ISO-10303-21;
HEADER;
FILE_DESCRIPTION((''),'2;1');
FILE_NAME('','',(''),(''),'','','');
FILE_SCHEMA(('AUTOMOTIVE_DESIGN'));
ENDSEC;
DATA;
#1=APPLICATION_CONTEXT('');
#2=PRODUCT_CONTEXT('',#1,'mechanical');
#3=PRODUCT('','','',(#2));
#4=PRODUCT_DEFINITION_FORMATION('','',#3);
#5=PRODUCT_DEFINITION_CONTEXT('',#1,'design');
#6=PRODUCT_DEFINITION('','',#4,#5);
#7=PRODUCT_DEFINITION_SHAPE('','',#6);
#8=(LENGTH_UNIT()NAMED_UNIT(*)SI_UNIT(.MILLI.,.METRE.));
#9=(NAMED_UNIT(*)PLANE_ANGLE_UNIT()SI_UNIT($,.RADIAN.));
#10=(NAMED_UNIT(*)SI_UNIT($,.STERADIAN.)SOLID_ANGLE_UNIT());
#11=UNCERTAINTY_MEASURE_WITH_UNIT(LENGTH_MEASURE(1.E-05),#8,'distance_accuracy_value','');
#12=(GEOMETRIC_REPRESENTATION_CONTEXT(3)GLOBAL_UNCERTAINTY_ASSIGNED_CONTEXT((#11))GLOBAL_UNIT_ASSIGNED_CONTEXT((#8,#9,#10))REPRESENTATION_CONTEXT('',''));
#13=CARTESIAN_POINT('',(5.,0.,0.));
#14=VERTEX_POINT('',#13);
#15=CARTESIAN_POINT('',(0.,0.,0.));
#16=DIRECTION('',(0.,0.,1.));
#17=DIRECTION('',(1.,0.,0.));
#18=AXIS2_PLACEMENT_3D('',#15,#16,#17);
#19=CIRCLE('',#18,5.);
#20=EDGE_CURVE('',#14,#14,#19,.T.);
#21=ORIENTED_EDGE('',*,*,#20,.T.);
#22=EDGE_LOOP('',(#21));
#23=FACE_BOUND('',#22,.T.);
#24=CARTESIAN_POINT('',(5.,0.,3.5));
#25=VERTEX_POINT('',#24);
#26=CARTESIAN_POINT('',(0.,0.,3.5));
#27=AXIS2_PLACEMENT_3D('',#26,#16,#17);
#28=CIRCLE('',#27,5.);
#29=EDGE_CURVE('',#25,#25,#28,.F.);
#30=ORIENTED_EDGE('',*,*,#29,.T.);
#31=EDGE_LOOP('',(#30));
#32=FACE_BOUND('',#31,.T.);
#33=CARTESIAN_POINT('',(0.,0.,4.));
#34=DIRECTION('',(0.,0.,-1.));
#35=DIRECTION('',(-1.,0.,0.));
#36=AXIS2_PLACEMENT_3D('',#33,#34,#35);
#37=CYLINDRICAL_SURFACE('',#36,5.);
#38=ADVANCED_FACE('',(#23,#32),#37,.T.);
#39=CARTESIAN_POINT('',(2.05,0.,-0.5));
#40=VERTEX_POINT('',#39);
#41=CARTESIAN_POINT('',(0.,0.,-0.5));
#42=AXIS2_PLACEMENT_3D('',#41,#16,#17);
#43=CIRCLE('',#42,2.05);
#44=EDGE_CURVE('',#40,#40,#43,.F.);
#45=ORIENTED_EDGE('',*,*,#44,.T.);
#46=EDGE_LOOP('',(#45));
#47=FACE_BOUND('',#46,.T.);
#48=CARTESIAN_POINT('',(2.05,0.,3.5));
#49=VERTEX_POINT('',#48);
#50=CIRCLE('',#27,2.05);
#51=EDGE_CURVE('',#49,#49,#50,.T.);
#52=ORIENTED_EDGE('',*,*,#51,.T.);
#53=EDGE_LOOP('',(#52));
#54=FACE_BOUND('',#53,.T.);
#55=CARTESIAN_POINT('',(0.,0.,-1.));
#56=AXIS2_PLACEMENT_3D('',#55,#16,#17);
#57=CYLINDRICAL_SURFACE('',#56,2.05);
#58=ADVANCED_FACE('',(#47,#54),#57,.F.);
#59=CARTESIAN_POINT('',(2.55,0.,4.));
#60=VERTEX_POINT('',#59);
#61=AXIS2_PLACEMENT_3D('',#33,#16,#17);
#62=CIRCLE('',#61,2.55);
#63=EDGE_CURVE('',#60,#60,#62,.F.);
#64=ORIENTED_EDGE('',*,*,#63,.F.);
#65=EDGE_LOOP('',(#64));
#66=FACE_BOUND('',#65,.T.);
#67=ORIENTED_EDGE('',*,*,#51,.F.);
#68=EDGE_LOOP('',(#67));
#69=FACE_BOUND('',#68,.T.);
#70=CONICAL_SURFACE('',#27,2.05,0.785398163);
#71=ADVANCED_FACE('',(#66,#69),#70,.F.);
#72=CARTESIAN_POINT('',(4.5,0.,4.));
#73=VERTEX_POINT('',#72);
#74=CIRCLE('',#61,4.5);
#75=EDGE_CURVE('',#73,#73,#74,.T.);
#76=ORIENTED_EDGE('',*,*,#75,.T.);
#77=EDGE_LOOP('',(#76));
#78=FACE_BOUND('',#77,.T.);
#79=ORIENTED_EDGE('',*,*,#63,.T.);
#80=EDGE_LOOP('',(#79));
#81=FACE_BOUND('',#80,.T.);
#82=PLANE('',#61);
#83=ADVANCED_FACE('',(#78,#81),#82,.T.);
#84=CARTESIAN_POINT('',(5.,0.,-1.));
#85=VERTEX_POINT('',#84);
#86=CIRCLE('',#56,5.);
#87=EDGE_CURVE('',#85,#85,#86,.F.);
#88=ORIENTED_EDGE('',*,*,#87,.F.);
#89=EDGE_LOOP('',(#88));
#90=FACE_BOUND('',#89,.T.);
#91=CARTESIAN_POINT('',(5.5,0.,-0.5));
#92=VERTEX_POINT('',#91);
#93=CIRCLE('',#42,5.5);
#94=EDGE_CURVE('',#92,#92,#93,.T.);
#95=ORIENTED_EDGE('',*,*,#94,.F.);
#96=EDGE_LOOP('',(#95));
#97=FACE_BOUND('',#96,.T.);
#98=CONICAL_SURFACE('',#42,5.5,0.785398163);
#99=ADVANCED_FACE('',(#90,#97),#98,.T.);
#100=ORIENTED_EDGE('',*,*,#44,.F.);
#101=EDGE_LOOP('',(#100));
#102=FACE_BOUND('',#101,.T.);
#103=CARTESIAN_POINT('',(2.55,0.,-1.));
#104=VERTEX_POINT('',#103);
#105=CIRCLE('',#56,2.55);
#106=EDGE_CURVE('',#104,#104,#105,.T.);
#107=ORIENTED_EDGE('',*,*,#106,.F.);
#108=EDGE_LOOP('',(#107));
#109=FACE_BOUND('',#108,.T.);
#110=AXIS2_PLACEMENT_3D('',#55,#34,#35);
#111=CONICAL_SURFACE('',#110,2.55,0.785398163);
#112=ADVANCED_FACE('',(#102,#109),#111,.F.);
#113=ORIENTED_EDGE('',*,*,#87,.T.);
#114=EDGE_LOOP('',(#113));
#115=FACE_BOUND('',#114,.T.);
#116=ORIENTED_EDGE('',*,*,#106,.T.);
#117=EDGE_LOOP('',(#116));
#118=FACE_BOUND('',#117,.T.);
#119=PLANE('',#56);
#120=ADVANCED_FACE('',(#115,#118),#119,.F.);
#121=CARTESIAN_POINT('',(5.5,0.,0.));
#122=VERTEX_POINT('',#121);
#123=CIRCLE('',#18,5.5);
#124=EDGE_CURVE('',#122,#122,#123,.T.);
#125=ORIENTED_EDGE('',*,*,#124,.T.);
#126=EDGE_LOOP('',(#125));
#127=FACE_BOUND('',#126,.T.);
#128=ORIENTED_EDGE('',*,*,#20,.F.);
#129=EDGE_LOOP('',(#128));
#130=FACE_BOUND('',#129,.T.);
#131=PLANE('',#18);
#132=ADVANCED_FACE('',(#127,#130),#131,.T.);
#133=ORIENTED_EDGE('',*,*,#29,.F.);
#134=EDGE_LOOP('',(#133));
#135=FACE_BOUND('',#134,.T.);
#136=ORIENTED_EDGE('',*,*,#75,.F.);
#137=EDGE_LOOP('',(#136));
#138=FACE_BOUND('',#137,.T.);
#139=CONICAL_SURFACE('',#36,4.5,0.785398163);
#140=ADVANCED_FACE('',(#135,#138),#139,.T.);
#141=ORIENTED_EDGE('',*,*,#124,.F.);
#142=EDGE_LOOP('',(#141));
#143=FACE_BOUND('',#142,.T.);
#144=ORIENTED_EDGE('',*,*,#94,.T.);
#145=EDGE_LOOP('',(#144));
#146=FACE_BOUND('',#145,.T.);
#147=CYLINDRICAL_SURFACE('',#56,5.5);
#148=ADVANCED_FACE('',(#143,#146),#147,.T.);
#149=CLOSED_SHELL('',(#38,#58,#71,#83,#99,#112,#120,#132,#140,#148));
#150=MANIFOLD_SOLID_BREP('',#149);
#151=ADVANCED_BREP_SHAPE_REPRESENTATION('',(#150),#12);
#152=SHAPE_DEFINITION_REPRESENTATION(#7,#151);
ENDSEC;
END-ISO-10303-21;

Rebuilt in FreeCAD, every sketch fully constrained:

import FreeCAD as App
import Part
import Sketcher
Q = App.Units.Quantity


def edges_at(feature, points):
    """Names of the edges that pass closest to the given points."""
    edges = feature.Shape.Edges
    near = lambda p: min(range(len(edges)), key=lambda i: edges[i].distToShape(Part.Vertex(*p))[0])
    return sorted({f"Edge{near(p) + 1}" for p in points})

doc = App.newDocument("Part")
params = doc.addObject("Spreadsheet::Sheet", "Params")
for row, (alias, value) in enumerate([
    ("sketch1_diameter", "10 mm"),
    ("pad1_length", "4 mm"),
    ("sketch2_diameter", "11 mm"),
    ("pad2_length", "1 mm"),
    ("sketch3_diameter", "4.1 mm"),
    ("chamfer_size", "0.5 mm"),
], start=1):
    params.set(f"A{row}", alias)
    params.set(f"B{row}", "=" + value)
    params.setAlias(f"B{row}", alias)

body = doc.addObject("PartDesign::Body", "Body")

sketch1 = body.newObject("Sketcher::SketchObject", "Sketch")
sketch1.AttachmentSupport = (doc.getObject("XY_Plane"), [""])
sketch1.MapMode = "FlatFace"
sketch1.addGeometry(Part.Circle(App.Vector(0, 0, 0), App.Vector(0, 0, 1), 5), False)
sketch1.addConstraint([
    Sketcher.Constraint("Coincident", 0, 3, -1, 1),
    Sketcher.Constraint("Diameter", 0, Q("10 mm")),
])
sketch1.setExpression("Constraints[1]", "Params.sketch1_diameter")
pad1 = body.newObject("PartDesign::Pad", "Pad")
pad1.Profile = sketch1
pad1.setExpression("Length", "Params.pad1_length")

sketch2 = body.newObject("Sketcher::SketchObject", "Sketch001")
sketch2.AttachmentSupport = (doc.getObject("XY_Plane"), [""])
sketch2.MapMode = "FlatFace"
sketch2.addGeometry(Part.Circle(App.Vector(0, 0, 0), App.Vector(0, 0, 1), 5.5), False)
sketch2.addConstraint([
    Sketcher.Constraint("Coincident", 0, 3, -1, 1),
    Sketcher.Constraint("Diameter", 0, Q("11 mm")),
])
sketch2.setExpression("Constraints[1]", "Params.sketch2_diameter")
pad2 = body.newObject("PartDesign::Pad", "Pad001")
pad2.Profile = sketch2
pad2.setExpression("Length", "Params.pad2_length")
pad2.Reversed = True

sketch3 = body.newObject("Sketcher::SketchObject", "Sketch002")
sketch3.AttachmentSupport = (doc.getObject("XY_Plane"), [""])
sketch3.MapMode = "FlatFace"
sketch3.AttachmentOffset = App.Placement(App.Vector(0, 0, 4), App.Rotation())
sketch3.addGeometry(Part.Circle(App.Vector(0, 0, 0), App.Vector(0, 0, 1), 2.05), False)
sketch3.addConstraint([
    Sketcher.Constraint("Coincident", 0, 3, -1, 1),
    Sketcher.Constraint("Diameter", 0, Q("4.1 mm")),
])
sketch3.setExpression("Constraints[1]", "Params.sketch3_diameter")
pocket1 = body.newObject("PartDesign::Pocket", "Pocket")
pocket1.Profile = sketch3
pocket1.Type = "ThroughAll"
doc.recompute()

chamfer = body.newObject("PartDesign::Chamfer", "Chamfer")
chamfer.Base = (pocket1, edges_at(pocket1, [
    (-2.05, 0, -1),
    (-2.05, 0, 4),
    (-5, 0, 4),
    (-5.5, 0, -1),
]))
chamfer.setExpression("Size", "Params.chamfer_size")

doc.recompute()
